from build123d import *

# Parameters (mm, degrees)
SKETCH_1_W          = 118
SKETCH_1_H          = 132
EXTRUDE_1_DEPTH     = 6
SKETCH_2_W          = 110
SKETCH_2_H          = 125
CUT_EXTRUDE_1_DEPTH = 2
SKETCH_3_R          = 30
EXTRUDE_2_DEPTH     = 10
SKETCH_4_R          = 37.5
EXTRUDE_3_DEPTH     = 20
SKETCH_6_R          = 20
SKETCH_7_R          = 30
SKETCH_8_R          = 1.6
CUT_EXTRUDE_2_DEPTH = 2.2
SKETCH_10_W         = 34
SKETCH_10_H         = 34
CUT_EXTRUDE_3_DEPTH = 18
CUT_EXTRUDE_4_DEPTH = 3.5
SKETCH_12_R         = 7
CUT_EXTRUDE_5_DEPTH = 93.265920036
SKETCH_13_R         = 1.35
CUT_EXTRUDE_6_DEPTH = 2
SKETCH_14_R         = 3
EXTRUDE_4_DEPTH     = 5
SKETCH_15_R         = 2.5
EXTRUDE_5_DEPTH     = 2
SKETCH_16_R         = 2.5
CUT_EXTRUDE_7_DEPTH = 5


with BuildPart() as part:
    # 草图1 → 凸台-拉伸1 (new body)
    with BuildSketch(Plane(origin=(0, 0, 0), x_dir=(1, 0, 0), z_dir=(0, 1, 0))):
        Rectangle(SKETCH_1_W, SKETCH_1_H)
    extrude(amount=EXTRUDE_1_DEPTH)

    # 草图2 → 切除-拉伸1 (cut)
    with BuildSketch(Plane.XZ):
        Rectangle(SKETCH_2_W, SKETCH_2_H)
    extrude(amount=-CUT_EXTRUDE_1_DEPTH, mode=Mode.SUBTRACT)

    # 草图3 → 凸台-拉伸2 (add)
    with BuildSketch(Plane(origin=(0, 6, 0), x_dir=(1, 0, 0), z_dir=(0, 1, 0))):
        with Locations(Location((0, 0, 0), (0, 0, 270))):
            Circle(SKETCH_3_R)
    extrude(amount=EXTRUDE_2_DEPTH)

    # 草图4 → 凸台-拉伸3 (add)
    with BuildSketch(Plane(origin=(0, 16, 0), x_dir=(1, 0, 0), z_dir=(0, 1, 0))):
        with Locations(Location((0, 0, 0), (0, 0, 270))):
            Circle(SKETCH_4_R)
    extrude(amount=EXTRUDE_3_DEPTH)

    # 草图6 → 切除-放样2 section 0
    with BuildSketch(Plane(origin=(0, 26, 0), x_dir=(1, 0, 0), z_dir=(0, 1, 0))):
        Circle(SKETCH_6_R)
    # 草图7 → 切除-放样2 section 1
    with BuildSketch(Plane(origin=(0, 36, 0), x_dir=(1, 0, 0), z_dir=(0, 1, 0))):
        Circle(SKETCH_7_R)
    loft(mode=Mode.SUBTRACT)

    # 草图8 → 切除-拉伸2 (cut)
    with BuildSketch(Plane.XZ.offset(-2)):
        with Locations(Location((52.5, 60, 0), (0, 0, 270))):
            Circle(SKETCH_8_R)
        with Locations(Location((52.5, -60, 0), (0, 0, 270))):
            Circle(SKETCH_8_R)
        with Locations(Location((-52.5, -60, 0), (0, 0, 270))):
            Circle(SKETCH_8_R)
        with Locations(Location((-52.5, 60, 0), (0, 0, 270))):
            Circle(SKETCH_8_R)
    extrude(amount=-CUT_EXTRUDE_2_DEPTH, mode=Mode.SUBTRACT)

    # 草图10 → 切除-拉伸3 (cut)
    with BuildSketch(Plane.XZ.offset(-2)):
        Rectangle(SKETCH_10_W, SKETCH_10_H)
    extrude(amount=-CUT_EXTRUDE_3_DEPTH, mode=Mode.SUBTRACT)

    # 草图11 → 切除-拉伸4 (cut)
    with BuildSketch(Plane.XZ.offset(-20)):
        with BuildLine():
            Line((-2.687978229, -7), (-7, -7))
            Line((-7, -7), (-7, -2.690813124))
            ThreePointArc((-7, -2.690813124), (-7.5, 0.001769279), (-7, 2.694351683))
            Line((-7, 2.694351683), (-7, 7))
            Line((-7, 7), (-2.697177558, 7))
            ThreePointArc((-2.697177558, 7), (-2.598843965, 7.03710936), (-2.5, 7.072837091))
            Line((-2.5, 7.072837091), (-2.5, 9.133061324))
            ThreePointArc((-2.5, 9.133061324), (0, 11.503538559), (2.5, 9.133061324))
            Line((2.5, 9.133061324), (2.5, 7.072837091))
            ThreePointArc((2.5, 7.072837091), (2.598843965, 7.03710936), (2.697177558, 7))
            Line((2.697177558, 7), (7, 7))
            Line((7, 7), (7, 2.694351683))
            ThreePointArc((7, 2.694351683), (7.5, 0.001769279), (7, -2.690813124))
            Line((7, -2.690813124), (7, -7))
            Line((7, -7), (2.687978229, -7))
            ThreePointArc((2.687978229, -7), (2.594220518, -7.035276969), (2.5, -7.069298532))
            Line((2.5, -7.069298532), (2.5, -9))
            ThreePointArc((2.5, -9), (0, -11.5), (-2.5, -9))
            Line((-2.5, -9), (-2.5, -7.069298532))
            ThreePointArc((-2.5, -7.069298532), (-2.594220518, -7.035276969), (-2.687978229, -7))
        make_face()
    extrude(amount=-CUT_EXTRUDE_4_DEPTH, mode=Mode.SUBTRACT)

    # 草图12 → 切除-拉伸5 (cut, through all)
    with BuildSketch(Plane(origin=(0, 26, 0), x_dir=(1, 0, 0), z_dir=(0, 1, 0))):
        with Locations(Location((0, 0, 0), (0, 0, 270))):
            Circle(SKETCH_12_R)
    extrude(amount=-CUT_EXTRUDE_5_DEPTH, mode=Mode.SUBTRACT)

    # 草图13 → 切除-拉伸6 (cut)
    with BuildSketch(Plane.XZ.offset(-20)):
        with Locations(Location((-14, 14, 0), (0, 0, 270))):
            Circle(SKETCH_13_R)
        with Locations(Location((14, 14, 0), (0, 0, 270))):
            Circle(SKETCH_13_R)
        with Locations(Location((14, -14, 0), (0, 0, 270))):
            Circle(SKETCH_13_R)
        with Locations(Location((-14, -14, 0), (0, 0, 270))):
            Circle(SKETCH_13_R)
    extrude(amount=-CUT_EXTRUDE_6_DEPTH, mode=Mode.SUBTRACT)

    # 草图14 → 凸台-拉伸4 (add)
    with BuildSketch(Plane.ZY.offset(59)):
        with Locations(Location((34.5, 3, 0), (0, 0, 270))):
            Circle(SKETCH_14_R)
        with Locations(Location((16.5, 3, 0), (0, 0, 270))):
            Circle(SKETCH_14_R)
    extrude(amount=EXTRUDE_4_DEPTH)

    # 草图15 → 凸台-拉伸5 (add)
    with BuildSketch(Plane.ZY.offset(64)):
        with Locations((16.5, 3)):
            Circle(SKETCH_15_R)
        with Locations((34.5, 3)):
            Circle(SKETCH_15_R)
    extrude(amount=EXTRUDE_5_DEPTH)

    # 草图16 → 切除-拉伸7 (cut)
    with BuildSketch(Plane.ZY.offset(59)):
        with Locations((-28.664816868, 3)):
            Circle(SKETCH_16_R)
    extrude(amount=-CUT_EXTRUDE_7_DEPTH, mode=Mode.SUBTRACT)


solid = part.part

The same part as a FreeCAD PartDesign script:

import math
import FreeCAD as App
import Part
import Sketcher
from FreeCAD import Vector
Q = App.Units.Quantity


def add_polygon(sketch, points):
    """Adds a closed chain of lines whose ends are joined by coincident constraints."""
    first, n = sketch.GeometryCount, len(points)
    for a, b in zip(points, points[1:] + points[:1]):
        sketch.addGeometry(Part.LineSegment(App.Vector(*a, 0), App.Vector(*b, 0)), False)
    for i in range(n):
        sketch.addConstraint(Sketcher.Constraint("Coincident", first + i, 2, first + (i + 1) % n, 1))

doc = App.newDocument("Part")
body = doc.addObject("PartDesign::Body", "Body")

sketch1 = body.newObject("Sketcher::SketchObject", "Sketch")
sketch1.AttachmentSupport = (doc.getObject("XZ_Plane"), [""])
sketch1.MapMode = "FlatFace"
add_polygon(sketch1, [(-59, -66), (-59, 66), (59, 66), (59, -66)])
sketch1.addConstraint([
    Sketcher.Constraint("Vertical", 0),
    Sketcher.Constraint("Horizontal", 1),
    Sketcher.Constraint("Vertical", 2),
    Sketcher.Constraint("Horizontal", 3),
    Sketcher.Constraint("Symmetric", 0, 2, 2, 2, -1, 1),
    Sketcher.Constraint("DistanceX", 1, 1, 1, 2, Q("118 mm")),
    Sketcher.Constraint("DistanceY", 0, 1, 0, 2, Q("132 mm")),
])
pad1 = body.newObject("PartDesign::Pad", "Pad")
pad1.Profile = sketch1
pad1.Length = 6
pad1.Reversed = True

sketch2 = body.newObject("Sketcher::SketchObject", "Sketch001")
sketch2.AttachmentSupport = (doc.getObject("XZ_Plane"), [""])
sketch2.MapMode = "FlatFace"
add_polygon(sketch2, [(-55, 62.5), (-55, -62.5), (55, -62.5), (55, 62.5)])
sketch2.addConstraint([
    Sketcher.Constraint("Vertical", 0),
    Sketcher.Constraint("Horizontal", 1),
    Sketcher.Constraint("Vertical", 2),
    Sketcher.Constraint("Horizontal", 3),
    Sketcher.Constraint("Symmetric", 0, 2, 2, 2, -1, 1),
    Sketcher.Constraint("DistanceX", 1, 1, 1, 2, Q("110 mm")),
    Sketcher.Constraint("DistanceY", 0, 2, 0, 1, Q("125 mm")),
])
pocket1 = body.newObject("PartDesign::Pocket", "Pocket")
pocket1.Profile = sketch2
pocket1.Length = 2

sketch3 = body.newObject("Sketcher::SketchObject", "Sketch002")
sketch3.AttachmentSupport = (doc.getObject("XZ_Plane"), [""])
sketch3.MapMode = "FlatFace"
sketch3.AttachmentOffset = App.Placement(Vector(0, 0, -6), App.Rotation())
sketch3.addGeometry(Part.Circle(Vector(0, 0, 0), Vector(0, 0, 1), 30), False)
sketch3.addConstraint([
    Sketcher.Constraint("Coincident", 0, 3, -1, 1),
    Sketcher.Constraint("Diameter", 0, Q("60 mm")),
])
pad2 = body.newObject("PartDesign::Pad", "Pad001")
pad2.Profile = sketch3
pad2.Length = 10
pad2.Reversed = True

sketch4 = body.newObject("Sketcher::SketchObject", "Sketch003")
sketch4.AttachmentSupport = (doc.getObject("XZ_Plane"), [""])
sketch4.MapMode = "FlatFace"
sketch4.AttachmentOffset = App.Placement(Vector(0, 0, -16), App.Rotation())
sketch4.addGeometry(Part.Circle(Vector(0, 0, 0), Vector(0, 0, 1), 37.5), False)
sketch4.addConstraint([
    Sketcher.Constraint("Coincident", 0, 3, -1, 1),
    Sketcher.Constraint("Diameter", 0, Q("75 mm")),
])
pad3 = body.newObject("PartDesign::Pad", "Pad002")
pad3.Profile = sketch4
pad3.Length = 20
pad3.Reversed = True

sketch5 = body.newObject("Sketcher::SketchObject", "Sketch004")
sketch5.AttachmentSupport = (doc.getObject("XZ_Plane"), [""])
sketch5.MapMode = "FlatFace"
sketch5.AttachmentOffset = App.Placement(Vector(0, 0, -26), App.Rotation())
sketch5.addGeometry(Part.Circle(Vector(0, 0, 0), Vector(0, 0, 1), 20), False)
sketch5.addConstraint([
    Sketcher.Constraint("Coincident", 0, 3, -1, 1),
    Sketcher.Constraint("Diameter", 0, Q("40 mm")),
])

sketch6 = body.newObject("Sketcher::SketchObject", "Sketch005")
sketch6.AttachmentSupport = (doc.getObject("XZ_Plane"), [""])
sketch6.MapMode = "FlatFace"
sketch6.AttachmentOffset = App.Placement(Vector(0, 0, -36), App.Rotation())
sketch6.addGeometry(Part.Circle(Vector(0, 0, 0), Vector(0, 0, 1), 30), False)
sketch6.addConstraint([
    Sketcher.Constraint("Coincident", 0, 3, -1, 1),
    Sketcher.Constraint("Diameter", 0, Q("60 mm")),
])

subtractiveloft = body.newObject("PartDesign::SubtractiveLoft", "SubtractiveLoft")
subtractiveloft.Profile = sketch5
subtractiveloft.Sections = [sketch6]

sketch7 = body.newObject("Sketcher::SketchObject", "Sketch006")
sketch7.AttachmentSupport = (doc.getObject("XZ_Plane"), [""])
sketch7.MapMode = "FlatFace"
sketch7.AttachmentOffset = App.Placement(Vector(0, 0, -2), App.Rotation())
sketch7.addGeometry([
    Part.Circle(Vector(52.5, 60, 0), Vector(0, 0, 1), 1.6),
    Part.Circle(Vector(52.5, -60, 0), Vector(0, 0, 1), 1.6),
    Part.Circle(Vector(-52.5, -60, 0), Vector(0, 0, 1), 1.6),
    Part.Circle(Vector(-52.5, 60, 0), Vector(0, 0, 1), 1.6),
], False)
sketch7.addConstraint([
    Sketcher.Constraint("Equal", 0, 1),
    Sketcher.Constraint("Equal", 1, 2),
    Sketcher.Constraint("Equal", 2, 3),
    Sketcher.Constraint("Symmetric", 0, 3, 2, 3, -1, 1),
    Sketcher.Constraint("Symmetric", 1, 3, 3, 3, -1, 1),
    Sketcher.Constraint("Symmetric", 1, 3, 2, 3, -2),
    Sketcher.Constraint("Diameter", 0, Q("3.2 mm")),
    Sketcher.Constraint("DistanceY", -1, 1, 0, 3, Q("60 mm")),
    Sketcher.Constraint("DistanceX", 2, 3, 1, 3, Q("105 mm")),
])
pocket2 = body.newObject("PartDesign::Pocket", "Pocket001")
pocket2.Profile = sketch7
pocket2.Length = 2.2

sketch8 = body.newObject("Sketcher::SketchObject", "Sketch007")
sketch8.AttachmentSupport = (doc.getObject("XZ_Plane"), [""])
sketch8.MapMode = "FlatFace"
sketch8.AttachmentOffset = App.Placement(Vector(0, 0, -2), App.Rotation())
add_polygon(sketch8, [(-17, 17), (-17, -17), (17, -17), (17, 17)])
sketch8.addConstraint([
    Sketcher.Constraint("Vertical", 0),
    Sketcher.Constraint("Horizontal", 1),
    Sketcher.Constraint("Vertical", 2),
    Sketcher.Constraint("Horizontal", 3),
    Sketcher.Constraint("Symmetric", 0, 2, 2, 2, -1, 1),
    Sketcher.Constraint("Equal", 3, 0),
    Sketcher.Constraint("DistanceX", 1, 1, 1, 2, Q("34 mm")),
])
pocket3 = body.newObject("PartDesign::Pocket", "Pocket002")
pocket3.Profile = sketch8
pocket3.Length = 18

sketch9 = body.newObject("Sketcher::SketchObject", "Sketch008")
sketch9.AttachmentSupport = (doc.getObject("XZ_Plane"), [""])
sketch9.MapMode = "FlatFace"
sketch9.AttachmentOffset = App.Placement(Vector(0, 0, -20), App.Rotation())
sketch9.addGeometry([
    Part.LineSegment(Vector(-7, -7, 0), Vector(-2.687978, -7, 0)),
    Part.ArcOfCircle(Part.Circle(Vector(0, 0.001769, 0), Vector(0, 0, 1), 7.5), math.radians(-111.001789), math.radians(-109.47122)),
    Part.LineSegment(Vector(-2.5, -7.069299, 0), Vector(-2.5, -9, 0)),
    Part.ArcOfCircle(Part.Circle(Vector(0, -9, 0), Vector(0, 0, 1), 2.5), math.radians(180), math.radians(360)),
    Part.LineSegment(Vector(2.5, -9, 0), Vector(2.5, -7.069299, 0)),
    Part.ArcOfCircle(Part.Circle(Vector(0, 0.001769, 0), Vector(0, 0, 1), 7.5), math.radians(-70.52878), math.radians(-68.998211)),
    Part.LineSegment(Vector(2.687978, -7, 0), Vector(7, -7, 0)),
    Part.LineSegment(Vector(7, -7, 0), Vector(7, -2.690813, 0)),
    Part.ArcOfCircle(Part.Circle(Vector(0, 0.001769, 0), Vector(0, 0, 1), 7.5), math.radians(-21.03947), math.radians(21.03947)),
    Part.LineSegment(Vector(7, 2.694352, 0), Vector(7, 7, 0)),
    Part.LineSegment(Vector(7, 7, 0), Vector(2.697178, 7, 0)),
    Part.ArcOfCircle(Part.Circle(Vector(0.000002, 0.001774, 0), Vector(0, 0, 1), 7.499995), math.radians(68.922913), math.radians(70.52878)),
    Part.LineSegment(Vector(2.5, 7.072837, 0), Vector(2.5, 9.133061, 0)),
    Part.ArcOfCircle(Part.Circle(Vector(0, 9, 0), Vector(0, 0, 1), 2.503539), math.radians(3.046666), math.radians(176.953334)),
    Part.LineSegment(Vector(-2.5, 9.133061, 0), Vector(-2.5, 7.072837, 0)),
    Part.ArcOfCircle(Part.Circle(Vector(-0.000002, 0.001774, 0), Vector(0, 0, 1), 7.499995), math.radians(109.47122), math.radians(111.077087)),
    Part.LineSegment(Vector(-2.697178, 7, 0), Vector(-7, 7, 0)),
    Part.LineSegment(Vector(-7, 7, 0), Vector(-7, 2.694352, 0)),
    Part.ArcOfCircle(Part.Circle(Vector(0, 0.001769, 0), Vector(0, 0, 1), 7.5), math.radians(158.96053), math.radians(201.03947)),
    Part.LineSegment(Vector(-7, -2.690813, 0), Vector(-7, -7, 0)),
], False)
sketch9.addConstraint([
    Sketcher.Constraint("Coincident", 0, 2, 1, 1),
    Sketcher.Constraint("Coincident", 1, 2, 2, 1),
    Sketcher.Constraint("Tangent", 2, 2, 3, 1),
    Sketcher.Constraint("Tangent", 3, 2, 4, 1),
    Sketcher.Constraint("Coincident", 4, 2, 5, 1),
    Sketcher.Constraint("Coincident", 5, 2, 6, 1),
    Sketcher.Constraint("Coincident", 6, 2, 7, 1),
    Sketcher.Constraint("Coincident", 7, 2, 8, 1),
    Sketcher.Constraint("Coincident", 8, 2, 9, 1),
    Sketcher.Constraint("Coincident", 9, 2, 10, 1),
    Sketcher.Constraint("Coincident", 10, 2, 11, 1),
    Sketcher.Constraint("Coincident", 11, 2, 12, 1),
    Sketcher.Constraint("Coincident", 12, 2, 13, 1),
    Sketcher.Constraint("Coincident", 13, 2, 14, 1),
    Sketcher.Constraint("Coincident", 14, 2, 15, 1),
    Sketcher.Constraint("Coincident", 15, 2, 16, 1),
    Sketcher.Constraint("Coincident", 16, 2, 17, 1),
    Sketcher.Constraint("Coincident", 17, 2, 18, 1),
    Sketcher.Constraint("Coincident", 18, 2, 19, 1),
    Sketcher.Constraint("Coincident", 19, 2, 0, 1),
    Sketcher.Constraint("Horizontal", 0),
    Sketcher.Constraint("Vertical", 2),
    Sketcher.Constraint("Vertical", 4),
    Sketcher.Constraint("Horizontal", 6),
    Sketcher.Constraint("Vertical", 7),
    Sketcher.Constraint("Vertical", 9),
    Sketcher.Constraint("Horizontal", 10),
    Sketcher.Constraint("Vertical", 12),
    Sketcher.Constraint("Vertical", 14),
    Sketcher.Constraint("Horizontal", 16),
    Sketcher.Constraint("Vertical", 17),
    Sketcher.Constraint("Vertical", 19),
    Sketcher.Constraint("Coincident", 5, 3, 1, 3),
    Sketcher.Constraint("Coincident", 8, 3, 1, 3),
    Sketcher.Constraint("Coincident", 11, 3, 1, 3),
    Sketcher.Constraint("Coincident", 15, 3, 1, 3),
    Sketcher.Constraint("Coincident", 18, 3, 1, 3),
    Sketcher.Constraint("Equal", 1, 5),
    Sketcher.Constraint("Equal", 5, 8),
    Sketcher.Constraint("Equal", 11, 15),
    Sketcher.Constraint("Equal", 8, 18),
    Sketcher.Constraint("Symmetric", 3, 3, 13, 3, -1, 1),
    Sketcher.Constraint("Symmetric", 6, 2, 16, 2, -1, 1),
    Sketcher.Constraint("Symmetric", 9, 2, 19, 2, -1, 1),
    Sketcher.Constraint("Symmetric", 1, 2, 4, 2, -2),
    Sketcher.Constraint("Symmetric", 9, 2, 16, 2, -2),
    Sketcher.Constraint("Horizontal", 12, 2, 13, 2),
    Sketcher.Constraint("Vertical", 4, 2, 11, 2),
    Sketcher.Constraint("Radius", 1, Q("7.5 mm")),
    Sketcher.Constraint("Radius", 3, Q("2.5 mm")),
    Sketcher.Constraint("DistanceY", 3, 3, -1, 1, Q("9 mm")),
    Sketcher.Constraint("DistanceY", 0, 2, -1, 1, Q("7 mm")),
    Sketcher.Constraint("DistanceX", -1, 1, 6, 2, Q("7 mm")),
    Sketcher.Constraint("Radius", 13, Q("2.503539 mm")),
    Sketcher.Constraint("DistanceY", 2, 2, 2, 1, Q("1.930701 mm")),
    Sketcher.Constraint("Radius", 11, Q("7.499995 mm")),
])
pocket4 = body.newObject("PartDesign::Pocket", "Pocket003")
pocket4.Profile = sketch9
pocket4.Length = 3.5

sketch10 = body.newObject("Sketcher::SketchObject", "Sketch009")
sketch10.AttachmentSupport = (doc.getObject("XZ_Plane"), [""])
sketch10.MapMode = "FlatFace"
sketch10.AttachmentOffset = App.Placement(Vector(0, 0, -26), App.Rotation())
sketch10.addGeometry(Part.Circle(Vector(0, 0, 0), Vector(0, 0, 1), 7), False)
sketch10.addConstraint([
    Sketcher.Constraint("Coincident", 0, 3, -1, 1),
    Sketcher.Constraint("Diameter", 0, Q("14 mm")),
])
pocket5 = body.newObject("PartDesign::Pocket", "Pocket004")
pocket5.Profile = sketch10
pocket5.Type = "ThroughAll"
pocket5.Reversed = True

sketch11 = body.newObject("Sketcher::SketchObject", "Sketch010")
sketch11.AttachmentSupport = (doc.getObject("XZ_Plane"), [""])
sketch11.MapMode = "FlatFace"
sketch11.AttachmentOffset = App.Placement(Vector(0, 0, -20), App.Rotation())
sketch11.addGeometry([
    Part.Circle(Vector(-14, 14, 0), Vector(0, 0, 1), 1.35),
    Part.Circle(Vector(14, 14, 0), Vector(0, 0, 1), 1.35),
    Part.Circle(Vector(14, -14, 0), Vector(0, 0, 1), 1.35),
    Part.Circle(Vector(-14, -14, 0), Vector(0, 0, 1), 1.35),
], False)
sketch11.addConstraint([
    Sketcher.Constraint("Equal", 0, 1),
    Sketcher.Constraint("Equal", 1, 2),
    Sketcher.Constraint("Equal", 2, 3),
    Sketcher.Constraint("Symmetric", 0, 3, 2, 3, -1, 1),
    Sketcher.Constraint("Symmetric", 1, 3, 3, 3, -1, 1),
    Sketcher.Constraint("Symmetric", 0, 3, 1, 3, -2),
    Sketcher.Constraint("Diameter", 0, Q("2.7 mm")),
    Sketcher.Constraint("DistanceX", 0, 3, -1, 1, Q("14 mm")),
    Sketcher.Constraint("DistanceY", -1, 1, 0, 3, Q("14 mm")),
])
pocket6 = body.newObject("PartDesign::Pocket", "Pocket005")
pocket6.Profile = sketch11
pocket6.Length = 2

sketch12 = body.newObject("Sketcher::SketchObject", "Sketch011")
sketch12.AttachmentSupport = (doc.getObject("YZ_Plane"), [""])
sketch12.MapMode = "FlatFace"
sketch12.AttachmentOffset = App.Placement(Vector(0, 0, -59), App.Rotation())
sketch12.addGeometry([
    Part.Circle(Vector(3, 34.5, 0), Vector(0, 0, 1), 3),
    Part.Circle(Vector(3, 16.5, 0), Vector(0, 0, 1), 3),
], False)
sketch12.addConstraint([
    Sketcher.Constraint("Equal", 0, 1),
    Sketcher.Constraint("Vertical", 0, 3, 1, 3),
    Sketcher.Constraint("Diameter", 0, Q("6 mm")),
    Sketcher.Constraint("DistanceX", -1, 1, 0, 3, Q("3 mm")),
    Sketcher.Constraint("DistanceY", 1, 3, 0, 3, Q("18 mm")),
    Sketcher.Constraint("DistanceY", -1, 1, 0, 3, Q("34.5 mm")),
])
pad4 = body.newObject("PartDesign::Pad", "Pad003")
pad4.Profile = sketch12
pad4.Length = 5
pad4.Reversed = True

sketch13 = body.newObject("Sketcher::SketchObject", "Sketch012")
sketch13.AttachmentSupport = (doc.getObject("YZ_Plane"), [""])
sketch13.MapMode = "FlatFace"
sketch13.AttachmentOffset = App.Placement(Vector(0, 0, -64), App.Rotation())
sketch13.addGeometry([
    Part.Circle(Vector(3, 16.5, 0), Vector(0, 0, 1), 2.5),
    Part.Circle(Vector(3, 34.5, 0), Vector(0, 0, 1), 2.5),
], False)
sketch13.addConstraint([
    Sketcher.Constraint("Equal", 0, 1),
    Sketcher.Constraint("Vertical", 0, 3, 1, 3),
    Sketcher.Constraint("Diameter", 0, Q("5 mm")),
    Sketcher.Constraint("DistanceX", -1, 1, 0, 3, Q("3 mm")),
    Sketcher.Constraint("DistanceY", 0, 3, 1, 3, Q("18 mm")),
    Sketcher.Constraint("DistanceY", -1, 1, 0, 3, Q("16.5 mm")),
])
pad5 = body.newObject("PartDesign::Pad", "Pad004")
pad5.Profile = sketch13
pad5.Length = 2
pad5.Reversed = True

sketch14 = body.newObject("Sketcher::SketchObject", "Sketch013")
sketch14.AttachmentSupport = (doc.getObject("YZ_Plane"), [""])
sketch14.MapMode = "FlatFace"
sketch14.AttachmentOffset = App.Placement(Vector(0, 0, -59), App.Rotation())
sketch14.addGeometry(Part.Circle(Vector(3, -28.664817, 0), Vector(0, 0, 1), 2.5), False)
sketch14.addConstraint([
    Sketcher.Constraint("Diameter", 0, Q("5 mm")),
    Sketcher.Constraint("DistanceX", -1, 1, 0, 3, Q("3 mm")),
    Sketcher.Constraint("DistanceY", 0, 3, -1, 1, Q("28.664817 mm")),
])
pocket7 = body.newObject("PartDesign::Pocket", "Pocket006")
pocket7.Profile = sketch14
pocket7.Length = 5
pocket7.Reversed = True

doc.recompute()
